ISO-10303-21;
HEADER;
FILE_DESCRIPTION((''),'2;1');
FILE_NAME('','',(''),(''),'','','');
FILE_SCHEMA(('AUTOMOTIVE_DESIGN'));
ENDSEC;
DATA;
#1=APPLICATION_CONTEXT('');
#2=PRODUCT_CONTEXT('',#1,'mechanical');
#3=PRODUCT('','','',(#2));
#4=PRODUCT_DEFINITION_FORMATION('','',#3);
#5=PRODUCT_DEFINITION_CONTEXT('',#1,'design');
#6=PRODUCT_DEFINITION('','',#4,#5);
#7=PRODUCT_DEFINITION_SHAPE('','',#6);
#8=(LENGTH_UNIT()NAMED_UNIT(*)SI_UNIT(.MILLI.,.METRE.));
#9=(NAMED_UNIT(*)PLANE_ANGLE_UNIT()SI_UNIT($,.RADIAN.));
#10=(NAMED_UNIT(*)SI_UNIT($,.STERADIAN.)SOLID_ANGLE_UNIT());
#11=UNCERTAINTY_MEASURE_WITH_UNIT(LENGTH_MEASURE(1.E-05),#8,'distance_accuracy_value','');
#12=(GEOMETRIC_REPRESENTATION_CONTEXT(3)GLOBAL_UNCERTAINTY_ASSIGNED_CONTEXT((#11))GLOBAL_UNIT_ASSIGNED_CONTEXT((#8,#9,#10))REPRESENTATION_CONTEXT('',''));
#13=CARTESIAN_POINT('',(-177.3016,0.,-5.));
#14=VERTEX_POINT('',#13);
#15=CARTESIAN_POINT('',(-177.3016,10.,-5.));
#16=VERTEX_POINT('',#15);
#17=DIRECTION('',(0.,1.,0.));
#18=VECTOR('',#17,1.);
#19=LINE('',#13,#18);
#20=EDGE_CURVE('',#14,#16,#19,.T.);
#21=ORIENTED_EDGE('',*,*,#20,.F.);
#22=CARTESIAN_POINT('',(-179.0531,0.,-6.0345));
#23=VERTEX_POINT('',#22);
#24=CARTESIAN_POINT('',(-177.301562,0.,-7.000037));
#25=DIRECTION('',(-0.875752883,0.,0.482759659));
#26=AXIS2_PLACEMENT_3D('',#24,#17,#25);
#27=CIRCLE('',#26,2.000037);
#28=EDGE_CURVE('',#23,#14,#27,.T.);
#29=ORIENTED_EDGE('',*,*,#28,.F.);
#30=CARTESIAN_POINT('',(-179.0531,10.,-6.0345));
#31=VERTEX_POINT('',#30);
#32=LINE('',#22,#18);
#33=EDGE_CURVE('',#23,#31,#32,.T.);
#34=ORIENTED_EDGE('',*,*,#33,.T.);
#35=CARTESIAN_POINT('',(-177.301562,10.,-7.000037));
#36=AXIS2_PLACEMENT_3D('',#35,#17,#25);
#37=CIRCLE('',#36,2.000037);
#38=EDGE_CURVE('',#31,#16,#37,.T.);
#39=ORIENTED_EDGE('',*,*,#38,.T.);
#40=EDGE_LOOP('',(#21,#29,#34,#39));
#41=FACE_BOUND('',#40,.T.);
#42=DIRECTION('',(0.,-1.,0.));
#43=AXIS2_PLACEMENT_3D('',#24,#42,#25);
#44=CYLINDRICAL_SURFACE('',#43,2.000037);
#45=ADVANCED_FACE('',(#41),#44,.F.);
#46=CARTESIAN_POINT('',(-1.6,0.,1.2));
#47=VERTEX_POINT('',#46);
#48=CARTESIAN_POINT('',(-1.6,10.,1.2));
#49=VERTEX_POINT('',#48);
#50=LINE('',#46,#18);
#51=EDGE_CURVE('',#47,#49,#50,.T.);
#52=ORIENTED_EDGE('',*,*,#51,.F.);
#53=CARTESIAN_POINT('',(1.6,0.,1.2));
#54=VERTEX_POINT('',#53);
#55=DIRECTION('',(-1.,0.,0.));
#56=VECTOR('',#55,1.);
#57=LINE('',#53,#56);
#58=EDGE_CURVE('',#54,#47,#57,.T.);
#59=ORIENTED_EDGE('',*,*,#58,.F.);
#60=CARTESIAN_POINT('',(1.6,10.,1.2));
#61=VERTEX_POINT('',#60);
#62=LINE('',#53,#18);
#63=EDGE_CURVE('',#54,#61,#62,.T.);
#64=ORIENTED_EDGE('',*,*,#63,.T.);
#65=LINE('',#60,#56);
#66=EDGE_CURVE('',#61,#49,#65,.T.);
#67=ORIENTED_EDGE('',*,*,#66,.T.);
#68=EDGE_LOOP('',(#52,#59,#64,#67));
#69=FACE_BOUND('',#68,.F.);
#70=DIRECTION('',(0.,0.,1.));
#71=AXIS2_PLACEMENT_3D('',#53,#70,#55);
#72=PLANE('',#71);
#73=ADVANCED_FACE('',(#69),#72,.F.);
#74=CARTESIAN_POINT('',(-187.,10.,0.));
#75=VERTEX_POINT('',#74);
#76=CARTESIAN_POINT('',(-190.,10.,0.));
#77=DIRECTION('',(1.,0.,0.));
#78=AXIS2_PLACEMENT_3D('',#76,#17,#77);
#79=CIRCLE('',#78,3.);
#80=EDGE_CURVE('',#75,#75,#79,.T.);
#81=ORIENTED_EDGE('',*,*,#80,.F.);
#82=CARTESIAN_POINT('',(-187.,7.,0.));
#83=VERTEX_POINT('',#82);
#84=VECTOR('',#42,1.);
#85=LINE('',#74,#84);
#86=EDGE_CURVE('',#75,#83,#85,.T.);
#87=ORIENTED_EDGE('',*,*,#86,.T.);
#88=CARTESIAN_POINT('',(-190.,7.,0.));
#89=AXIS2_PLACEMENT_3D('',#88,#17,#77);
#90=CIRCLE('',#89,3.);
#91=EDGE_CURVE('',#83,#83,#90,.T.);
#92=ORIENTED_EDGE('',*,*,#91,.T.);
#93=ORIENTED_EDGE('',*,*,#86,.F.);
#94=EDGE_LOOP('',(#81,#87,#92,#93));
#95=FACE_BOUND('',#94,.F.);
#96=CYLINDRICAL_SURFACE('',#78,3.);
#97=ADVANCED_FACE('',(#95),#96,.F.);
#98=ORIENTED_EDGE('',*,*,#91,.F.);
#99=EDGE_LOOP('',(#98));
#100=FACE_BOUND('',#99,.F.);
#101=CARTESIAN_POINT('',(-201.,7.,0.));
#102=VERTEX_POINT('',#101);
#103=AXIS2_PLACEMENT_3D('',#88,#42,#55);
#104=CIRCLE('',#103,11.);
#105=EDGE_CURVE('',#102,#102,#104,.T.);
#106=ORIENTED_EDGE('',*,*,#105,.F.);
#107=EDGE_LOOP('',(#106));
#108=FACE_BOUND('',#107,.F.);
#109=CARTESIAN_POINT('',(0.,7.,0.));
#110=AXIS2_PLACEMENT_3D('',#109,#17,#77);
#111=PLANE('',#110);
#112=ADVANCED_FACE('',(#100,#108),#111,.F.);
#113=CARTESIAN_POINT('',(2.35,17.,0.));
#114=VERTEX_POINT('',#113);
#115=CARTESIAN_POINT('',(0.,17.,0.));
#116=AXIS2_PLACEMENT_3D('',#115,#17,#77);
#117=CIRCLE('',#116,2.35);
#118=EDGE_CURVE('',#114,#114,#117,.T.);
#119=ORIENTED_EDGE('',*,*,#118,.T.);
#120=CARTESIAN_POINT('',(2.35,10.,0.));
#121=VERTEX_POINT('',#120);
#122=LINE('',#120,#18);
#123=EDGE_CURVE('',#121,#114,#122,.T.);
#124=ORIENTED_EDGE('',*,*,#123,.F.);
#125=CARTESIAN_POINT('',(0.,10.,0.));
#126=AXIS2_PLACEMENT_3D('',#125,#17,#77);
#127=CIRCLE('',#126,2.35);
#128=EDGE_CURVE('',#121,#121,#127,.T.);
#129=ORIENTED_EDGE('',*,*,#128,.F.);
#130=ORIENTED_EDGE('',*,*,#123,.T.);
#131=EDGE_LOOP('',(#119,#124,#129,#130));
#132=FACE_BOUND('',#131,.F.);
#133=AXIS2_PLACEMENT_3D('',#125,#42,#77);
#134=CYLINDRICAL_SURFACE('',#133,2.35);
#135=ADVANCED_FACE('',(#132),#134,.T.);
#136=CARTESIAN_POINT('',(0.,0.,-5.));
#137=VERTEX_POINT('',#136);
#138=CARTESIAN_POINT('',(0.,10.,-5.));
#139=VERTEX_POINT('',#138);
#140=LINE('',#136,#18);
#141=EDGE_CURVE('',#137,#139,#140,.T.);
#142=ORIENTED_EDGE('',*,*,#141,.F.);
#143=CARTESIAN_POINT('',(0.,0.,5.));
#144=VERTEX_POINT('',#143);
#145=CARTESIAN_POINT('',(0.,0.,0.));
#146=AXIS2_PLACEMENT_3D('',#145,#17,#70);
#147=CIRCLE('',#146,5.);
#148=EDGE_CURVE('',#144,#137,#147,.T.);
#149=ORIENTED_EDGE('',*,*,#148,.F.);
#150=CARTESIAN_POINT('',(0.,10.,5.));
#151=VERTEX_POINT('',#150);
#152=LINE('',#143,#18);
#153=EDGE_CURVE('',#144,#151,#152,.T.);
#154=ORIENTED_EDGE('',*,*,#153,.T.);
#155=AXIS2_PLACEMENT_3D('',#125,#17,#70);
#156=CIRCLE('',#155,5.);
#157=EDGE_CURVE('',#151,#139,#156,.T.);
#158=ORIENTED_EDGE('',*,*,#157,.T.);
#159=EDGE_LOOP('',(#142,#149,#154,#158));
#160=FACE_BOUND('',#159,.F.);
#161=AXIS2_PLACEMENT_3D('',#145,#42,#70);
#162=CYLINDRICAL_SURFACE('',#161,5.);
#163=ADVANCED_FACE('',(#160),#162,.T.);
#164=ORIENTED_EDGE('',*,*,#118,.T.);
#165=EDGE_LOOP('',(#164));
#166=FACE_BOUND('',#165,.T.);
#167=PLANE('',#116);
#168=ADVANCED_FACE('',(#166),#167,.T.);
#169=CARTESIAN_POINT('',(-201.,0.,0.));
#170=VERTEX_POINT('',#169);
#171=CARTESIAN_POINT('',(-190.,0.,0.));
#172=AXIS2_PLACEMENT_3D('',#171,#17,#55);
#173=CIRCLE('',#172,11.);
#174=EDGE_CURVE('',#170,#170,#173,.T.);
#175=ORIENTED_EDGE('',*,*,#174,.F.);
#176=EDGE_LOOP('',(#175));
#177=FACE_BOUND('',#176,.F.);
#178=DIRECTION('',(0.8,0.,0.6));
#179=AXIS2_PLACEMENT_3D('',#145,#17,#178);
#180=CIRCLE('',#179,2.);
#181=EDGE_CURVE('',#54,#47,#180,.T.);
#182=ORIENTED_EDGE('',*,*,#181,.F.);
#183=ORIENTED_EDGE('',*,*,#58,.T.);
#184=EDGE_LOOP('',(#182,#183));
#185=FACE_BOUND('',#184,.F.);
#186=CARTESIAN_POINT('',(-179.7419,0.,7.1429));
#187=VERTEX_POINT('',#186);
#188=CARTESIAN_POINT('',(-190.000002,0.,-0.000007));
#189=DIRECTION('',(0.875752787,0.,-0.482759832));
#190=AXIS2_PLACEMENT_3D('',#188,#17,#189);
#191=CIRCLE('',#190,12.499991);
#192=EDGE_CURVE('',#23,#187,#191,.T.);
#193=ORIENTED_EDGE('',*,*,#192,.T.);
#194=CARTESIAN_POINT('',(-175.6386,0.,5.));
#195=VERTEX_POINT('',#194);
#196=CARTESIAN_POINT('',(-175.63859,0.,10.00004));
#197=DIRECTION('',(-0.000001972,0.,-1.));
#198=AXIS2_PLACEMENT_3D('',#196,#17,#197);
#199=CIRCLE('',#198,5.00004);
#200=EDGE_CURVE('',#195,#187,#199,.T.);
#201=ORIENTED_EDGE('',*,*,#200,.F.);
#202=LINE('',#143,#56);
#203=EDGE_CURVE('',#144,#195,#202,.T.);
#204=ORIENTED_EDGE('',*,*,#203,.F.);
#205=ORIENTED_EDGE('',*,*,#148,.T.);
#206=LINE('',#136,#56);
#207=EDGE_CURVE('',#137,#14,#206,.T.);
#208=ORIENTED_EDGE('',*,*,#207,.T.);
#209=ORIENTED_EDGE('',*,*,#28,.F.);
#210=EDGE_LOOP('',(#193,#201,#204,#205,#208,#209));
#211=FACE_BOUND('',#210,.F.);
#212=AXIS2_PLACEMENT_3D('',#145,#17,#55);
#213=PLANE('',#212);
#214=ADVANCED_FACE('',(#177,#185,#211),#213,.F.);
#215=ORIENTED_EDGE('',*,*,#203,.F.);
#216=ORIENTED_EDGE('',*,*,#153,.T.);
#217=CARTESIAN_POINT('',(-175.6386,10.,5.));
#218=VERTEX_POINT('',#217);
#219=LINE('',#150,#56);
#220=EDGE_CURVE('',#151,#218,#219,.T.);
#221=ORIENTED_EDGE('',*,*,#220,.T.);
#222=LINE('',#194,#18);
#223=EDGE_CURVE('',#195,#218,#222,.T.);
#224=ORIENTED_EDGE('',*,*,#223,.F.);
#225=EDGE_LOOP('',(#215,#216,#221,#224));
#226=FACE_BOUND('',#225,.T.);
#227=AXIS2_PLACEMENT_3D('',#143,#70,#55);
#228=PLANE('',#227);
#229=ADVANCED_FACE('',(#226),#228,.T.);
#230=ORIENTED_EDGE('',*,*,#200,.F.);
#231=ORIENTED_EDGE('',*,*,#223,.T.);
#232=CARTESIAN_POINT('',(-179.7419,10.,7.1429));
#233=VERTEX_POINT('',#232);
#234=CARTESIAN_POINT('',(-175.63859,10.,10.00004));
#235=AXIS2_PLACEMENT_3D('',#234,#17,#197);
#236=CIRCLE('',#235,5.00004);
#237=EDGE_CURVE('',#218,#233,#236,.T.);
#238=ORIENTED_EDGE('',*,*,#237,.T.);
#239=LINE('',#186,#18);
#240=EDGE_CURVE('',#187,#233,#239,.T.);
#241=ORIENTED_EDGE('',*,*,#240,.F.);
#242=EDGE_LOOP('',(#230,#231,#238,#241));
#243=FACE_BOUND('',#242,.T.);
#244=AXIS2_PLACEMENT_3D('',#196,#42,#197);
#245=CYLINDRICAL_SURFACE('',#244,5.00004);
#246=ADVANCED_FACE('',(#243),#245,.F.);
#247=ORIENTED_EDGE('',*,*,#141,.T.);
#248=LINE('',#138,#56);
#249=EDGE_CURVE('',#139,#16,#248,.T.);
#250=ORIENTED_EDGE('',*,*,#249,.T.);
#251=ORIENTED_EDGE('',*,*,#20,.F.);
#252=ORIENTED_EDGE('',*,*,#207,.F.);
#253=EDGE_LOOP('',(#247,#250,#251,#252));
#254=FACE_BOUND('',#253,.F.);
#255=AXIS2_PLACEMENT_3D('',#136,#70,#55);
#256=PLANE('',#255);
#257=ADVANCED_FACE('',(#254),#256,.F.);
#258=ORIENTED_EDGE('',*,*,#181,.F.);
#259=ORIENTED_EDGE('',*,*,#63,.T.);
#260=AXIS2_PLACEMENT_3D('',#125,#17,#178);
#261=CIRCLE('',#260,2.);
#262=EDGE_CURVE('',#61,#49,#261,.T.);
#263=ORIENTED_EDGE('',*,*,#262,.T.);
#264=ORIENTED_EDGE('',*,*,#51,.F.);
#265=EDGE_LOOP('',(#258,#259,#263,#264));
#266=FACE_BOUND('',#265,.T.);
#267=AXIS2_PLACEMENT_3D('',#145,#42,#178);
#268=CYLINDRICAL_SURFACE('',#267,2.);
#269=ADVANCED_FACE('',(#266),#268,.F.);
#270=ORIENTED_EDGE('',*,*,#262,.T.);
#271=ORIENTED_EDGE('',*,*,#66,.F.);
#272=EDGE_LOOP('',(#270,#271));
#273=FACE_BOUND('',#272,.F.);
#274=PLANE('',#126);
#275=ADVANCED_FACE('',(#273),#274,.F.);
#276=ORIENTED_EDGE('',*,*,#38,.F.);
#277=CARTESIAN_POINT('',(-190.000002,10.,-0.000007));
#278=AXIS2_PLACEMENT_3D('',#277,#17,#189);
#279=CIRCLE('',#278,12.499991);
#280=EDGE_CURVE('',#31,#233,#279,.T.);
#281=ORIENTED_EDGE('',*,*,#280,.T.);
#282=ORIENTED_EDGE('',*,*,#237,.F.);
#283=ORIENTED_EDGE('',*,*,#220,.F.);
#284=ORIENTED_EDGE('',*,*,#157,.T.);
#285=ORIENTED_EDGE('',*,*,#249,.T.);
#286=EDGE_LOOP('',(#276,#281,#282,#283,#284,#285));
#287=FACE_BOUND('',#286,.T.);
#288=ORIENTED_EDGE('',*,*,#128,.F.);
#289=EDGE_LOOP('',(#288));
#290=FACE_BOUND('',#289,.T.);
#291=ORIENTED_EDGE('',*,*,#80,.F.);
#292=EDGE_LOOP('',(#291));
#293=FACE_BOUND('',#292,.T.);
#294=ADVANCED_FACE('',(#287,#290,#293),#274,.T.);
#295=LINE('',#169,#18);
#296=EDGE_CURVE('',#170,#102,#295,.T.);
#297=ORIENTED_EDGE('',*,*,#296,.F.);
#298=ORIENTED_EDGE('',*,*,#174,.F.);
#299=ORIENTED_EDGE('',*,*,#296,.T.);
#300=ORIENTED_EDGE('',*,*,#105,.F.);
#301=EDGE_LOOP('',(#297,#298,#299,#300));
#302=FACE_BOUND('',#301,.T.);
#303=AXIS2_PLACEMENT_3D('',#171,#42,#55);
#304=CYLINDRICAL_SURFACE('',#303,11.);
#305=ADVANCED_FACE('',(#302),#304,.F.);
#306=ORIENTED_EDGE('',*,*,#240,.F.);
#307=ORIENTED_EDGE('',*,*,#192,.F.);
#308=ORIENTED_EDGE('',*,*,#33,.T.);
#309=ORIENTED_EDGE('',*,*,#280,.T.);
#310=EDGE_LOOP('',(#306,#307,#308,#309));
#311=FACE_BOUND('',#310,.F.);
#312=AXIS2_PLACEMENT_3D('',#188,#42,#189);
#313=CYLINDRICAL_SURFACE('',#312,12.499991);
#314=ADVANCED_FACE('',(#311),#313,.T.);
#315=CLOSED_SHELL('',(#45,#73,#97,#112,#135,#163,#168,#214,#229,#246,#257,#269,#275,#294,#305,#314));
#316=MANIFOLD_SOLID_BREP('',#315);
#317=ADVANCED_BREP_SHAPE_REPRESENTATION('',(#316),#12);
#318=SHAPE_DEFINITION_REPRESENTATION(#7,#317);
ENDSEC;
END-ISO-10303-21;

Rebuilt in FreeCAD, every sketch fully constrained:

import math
import FreeCAD as App
import Part
import Sketcher

V = App.Vector
Q = App.Units.Quantity

doc = App.newDocument("Part")
params = doc.addObject("Spreadsheet::Sheet", "Params")
for row, (alias, value) in enumerate([
    ("sketch1_diameter", "22 mm"),
    ("sketch1_radius", "5 mm"),
    ("sketch1_radius2", "2 mm"),
    ("sketch1_radius3", "12.5 mm"),
    ("pad1_length", "10 mm"),
    ("sketch2_diameter", "4.7 mm"),
    ("pad2_length", "7 mm"),
    ("sketch3_diameter", "22 mm"),
    ("sketch3_diameter2", "6 mm"),
    ("pad3_length", "3 mm"),
], start=1):
    params.set(f"A{row}", alias)
    params.set(f"B{row}", "=" + value)
    params.setAlias(f"B{row}", alias)

body = doc.addObject("PartDesign::Body", "Body")

# Sketch on XZ plane
sketch1 = body.newObject("Sketcher::SketchObject", "Sketch")
sketch1.AttachmentSupport = (doc.getObject("XZ_Plane"), [""])
sketch1.MapMode = "FlatFace"
sketch1.addGeometry([
    Part.LineSegment(V(-175.6, 5, 0), V(0, 5, 0)),  # 0
    Part.ArcOfCircle(Part.Circle(V(0, 0, 0), V(0, 0, 1), 5), math.radians(-90), math.radians(90)),  # 1
    Part.LineSegment(V(0, -5, 0), V(-177.3, -5, 0)),  # 2
    Part.ArcOfCircle(Part.Circle(V(-177.3, -7, 0), V(0, 0, 1), 2), math.radians(90), math.radians(151)),  # 3
    Part.ArcOfCircle(Part.Circle(V(-190, 0, 0), V(0, 0, 1), 12.5), math.radians(35), math.radians(331)),  # 4
    Part.ArcOfCircle(Part.Circle(V(-175.6, 10, 0), V(0, 0, 1), 5), math.radians(-145), math.radians(-90)),  # 5
    Part.ArcOfCircle(Part.Circle(V(0, 0, 0), V(0, 0, 1), 2), math.radians(143), math.radians(397)),  # 6
    Part.LineSegment(V(1.6, 1.2, 0), V(-1.6, 1.2, 0)),  # 7
    Part.Circle(V(-190, 0, 0), V(0, 0, 1), 11),  # 8
], False)
sketch1.addConstraint([
    Sketcher.Constraint("Tangent", 0, 2, 1, 2),
    Sketcher.Constraint("Tangent", 1, 1, 2, 1),
    Sketcher.Constraint("Tangent", 2, 2, 3, 1),
    Sketcher.Constraint("Tangent", 3, 2, 4, 2),
    Sketcher.Constraint("Tangent", 4, 1, 5, 1),
    Sketcher.Constraint("Tangent", 5, 2, 0, 1),
    Sketcher.Constraint("Coincident", 6, 1, 7, 2),
    Sketcher.Constraint("Coincident", 7, 1, 6, 2),
    Sketcher.Constraint("Horizontal", 0),
    Sketcher.Constraint("Horizontal", 2),
    Sketcher.Constraint("Horizontal", 7),
    Sketcher.Constraint("Coincident", 1, 3, -1, 1),
    Sketcher.Constraint("Coincident", 6, 3, -1, 1),
    Sketcher.Constraint("Coincident", 8, 3, 4, 3),
    Sketcher.Constraint("Equal", 1, 5),
    Sketcher.Constraint("Equal", 3, 6),
    Sketcher.Constraint("PointOnObject", 4, 3, -1),
    Sketcher.Constraint("Diameter", 8, Q("22 mm")),
    Sketcher.Constraint("Radius", 1, Q("5 mm")),
    Sketcher.Constraint("Radius", 3, Q("2 mm")),
    Sketcher.Constraint("Radius", 4, Q("12.5 mm")),
    Sketcher.Constraint("DistanceY", -1, 1, 6, 1, Q("1.2 mm")),
    Sketcher.Constraint("DistanceX", 4, 3, -1, 1, Q("190 mm")),
])
sketch1.setExpression("Constraints[17]", "Params.sketch1_diameter")
sketch1.setExpression("Constraints[18]", "Params.sketch1_radius")
sketch1.setExpression("Constraints[19]", "Params.sketch1_radius2")
sketch1.setExpression("Constraints[20]", "Params.sketch1_radius3")
pad1 = body.newObject("PartDesign::Pad", "Pad")
pad1.Profile = sketch1
pad1.setExpression("Length", "Params.pad1_length")
pad1.Reversed = True

# Sketch on XZ plane
sketch2 = body.newObject("Sketcher::SketchObject", "Sketch001")
sketch2.AttachmentSupport = (doc.getObject("XZ_Plane"), [""])
sketch2.MapMode = "FlatFace"
sketch2.AttachmentOffset = App.Placement(V(0, 0, -10), App.Rotation())
sketch2.addGeometry(Part.Circle(V(0, 0, 0), V(0, 0, 1), 2.4), False)
sketch2.addConstraint([
    Sketcher.Constraint("Coincident", 0, 3, -1, 1),
    Sketcher.Constraint("Diameter", 0, Q("4.7 mm")),
])
sketch2.setExpression("Constraints[1]", "Params.sketch2_diameter")
pad2 = body.newObject("PartDesign::Pad", "Pad001")
pad2.Profile = sketch2
pad2.setExpression("Length", "Params.pad2_length")
pad2.Reversed = True

# Sketch on XZ plane
sketch3 = body.newObject("Sketcher::SketchObject", "Sketch002")
sketch3.AttachmentSupport = (doc.getObject("XZ_Plane"), [""])
sketch3.MapMode = "FlatFace"
sketch3.AttachmentOffset = App.Placement(V(0, 0, -10), App.Rotation())
sketch3.addGeometry([
    Part.Circle(V(-190, 0, 0), V(0, 0, 1), 11),
    Part.Circle(V(-190, 0, 0), V(0, 0, 1), 3),
], False)
sketch3.addConstraint([
    Sketcher.Constraint("Coincident", 1, 3, 0, 3),
    Sketcher.Constraint("PointOnObject", 0, 3, -1),
    Sketcher.Constraint("Diameter", 0, Q("22 mm")),
    Sketcher.Constraint("Diameter", 1, Q("6 mm")),
    Sketcher.Constraint("DistanceX", 0, 3, -1, 1, Q("190 mm")),
])
sketch3.setExpression("Constraints[2]", "Params.sketch3_diameter")
sketch3.setExpression("Constraints[3]", "Params.sketch3_diameter2")
pad3 = body.newObject("PartDesign::Pad", "Pad002")
pad3.Profile = sketch3
pad3.setExpression("Length", "Params.pad3_length")

doc.recompute()
